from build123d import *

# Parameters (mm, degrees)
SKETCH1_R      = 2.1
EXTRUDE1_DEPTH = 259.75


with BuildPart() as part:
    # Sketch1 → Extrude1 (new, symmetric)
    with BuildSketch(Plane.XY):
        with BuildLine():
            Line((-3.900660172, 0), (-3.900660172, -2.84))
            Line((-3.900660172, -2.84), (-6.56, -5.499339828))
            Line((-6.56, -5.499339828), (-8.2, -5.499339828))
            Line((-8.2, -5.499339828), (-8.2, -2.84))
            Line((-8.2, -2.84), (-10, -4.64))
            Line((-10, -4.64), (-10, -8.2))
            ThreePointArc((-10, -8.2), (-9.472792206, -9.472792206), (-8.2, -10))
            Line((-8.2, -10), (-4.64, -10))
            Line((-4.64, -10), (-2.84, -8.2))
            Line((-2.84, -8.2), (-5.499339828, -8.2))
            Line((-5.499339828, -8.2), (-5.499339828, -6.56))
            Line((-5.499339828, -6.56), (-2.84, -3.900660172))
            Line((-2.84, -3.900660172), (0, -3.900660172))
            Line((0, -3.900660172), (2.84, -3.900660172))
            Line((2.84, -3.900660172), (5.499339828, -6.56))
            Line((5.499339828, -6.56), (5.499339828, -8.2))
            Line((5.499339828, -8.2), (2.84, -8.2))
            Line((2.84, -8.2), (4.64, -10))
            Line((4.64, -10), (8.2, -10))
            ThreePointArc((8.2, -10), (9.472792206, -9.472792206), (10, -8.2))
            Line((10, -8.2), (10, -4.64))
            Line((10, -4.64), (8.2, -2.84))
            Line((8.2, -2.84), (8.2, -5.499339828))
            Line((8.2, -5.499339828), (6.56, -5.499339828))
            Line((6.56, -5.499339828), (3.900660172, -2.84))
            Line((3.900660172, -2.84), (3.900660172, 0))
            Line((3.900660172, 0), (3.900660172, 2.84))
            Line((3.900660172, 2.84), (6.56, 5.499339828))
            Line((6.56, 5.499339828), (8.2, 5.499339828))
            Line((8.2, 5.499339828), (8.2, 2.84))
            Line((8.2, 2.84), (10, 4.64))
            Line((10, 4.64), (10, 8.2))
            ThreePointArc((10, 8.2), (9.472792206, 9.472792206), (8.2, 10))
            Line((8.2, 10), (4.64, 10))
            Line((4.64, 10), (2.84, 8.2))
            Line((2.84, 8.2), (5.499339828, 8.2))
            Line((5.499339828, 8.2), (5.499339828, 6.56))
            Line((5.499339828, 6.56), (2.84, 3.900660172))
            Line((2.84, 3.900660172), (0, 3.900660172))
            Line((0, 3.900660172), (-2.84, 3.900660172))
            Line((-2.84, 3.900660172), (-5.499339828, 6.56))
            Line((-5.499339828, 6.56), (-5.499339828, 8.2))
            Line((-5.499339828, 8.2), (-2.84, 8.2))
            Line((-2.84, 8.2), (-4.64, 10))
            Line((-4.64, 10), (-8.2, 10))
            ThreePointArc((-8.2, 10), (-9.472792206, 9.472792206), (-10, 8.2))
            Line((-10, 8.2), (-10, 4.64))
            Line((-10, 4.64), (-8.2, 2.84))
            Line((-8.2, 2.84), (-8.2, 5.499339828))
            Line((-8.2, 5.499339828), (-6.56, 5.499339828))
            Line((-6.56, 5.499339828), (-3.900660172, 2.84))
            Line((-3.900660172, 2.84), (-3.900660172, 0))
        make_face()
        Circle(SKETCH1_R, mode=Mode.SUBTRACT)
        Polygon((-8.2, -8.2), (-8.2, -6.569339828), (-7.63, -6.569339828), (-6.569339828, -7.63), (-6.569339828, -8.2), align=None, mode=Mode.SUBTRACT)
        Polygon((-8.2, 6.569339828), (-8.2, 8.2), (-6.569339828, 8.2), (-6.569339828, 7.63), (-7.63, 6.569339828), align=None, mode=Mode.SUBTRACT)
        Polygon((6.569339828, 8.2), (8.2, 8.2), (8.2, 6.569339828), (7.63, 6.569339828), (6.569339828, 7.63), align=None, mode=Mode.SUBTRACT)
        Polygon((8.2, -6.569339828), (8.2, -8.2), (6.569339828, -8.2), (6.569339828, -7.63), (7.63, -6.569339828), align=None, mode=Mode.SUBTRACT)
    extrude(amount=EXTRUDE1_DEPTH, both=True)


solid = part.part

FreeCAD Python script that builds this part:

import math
import FreeCAD as App
import Part
import Sketcher
from FreeCAD import Vector
Q = App.Units.Quantity


def add_polygon(sketch, points):
    """Adds a closed chain of lines whose ends are joined by coincident constraints."""
    first, n = sketch.GeometryCount, len(points)
    for a, b in zip(points, points[1:] + points[:1]):
        sketch.addGeometry(Part.LineSegment(App.Vector(*a, 0), App.Vector(*b, 0)), False)
    for i in range(n):
        sketch.addConstraint(Sketcher.Constraint("Coincident", first + i, 2, first + (i + 1) % n, 1))

doc = App.newDocument("Part")
body = doc.addObject("PartDesign::Body", "Body")

# Sketch on XY plane
sketch1 = doc.addObject("Sketcher::SketchObject", "Sketch")
body.addObject(sketch1)
sketch1.AttachmentSupport = (doc.XY_Plane, [""])
sketch1.MapMode = "FlatFace"
sketch1.addGeometry(Part.LineSegment(Vector(-3.9, -2.8, 0), Vector(-6.6, -5.5, 0)), False)  # 0
sketch1.addGeometry(Part.LineSegment(Vector(-6.6, -5.5, 0), Vector(-8.2, -5.5, 0)), False)  # 1
sketch1.addGeometry(Part.LineSegment(Vector(-8.2, -5.5, 0), Vector(-8.2, -2.8, 0)), False)  # 2
sketch1.addGeometry(Part.LineSegment(Vector(-8.2, -2.8, 0), Vector(-10, -4.6, 0)), False)  # 3
sketch1.addGeometry(Part.LineSegment(Vector(-10, -4.6, 0), Vector(-10, -8.2, 0)), False)  # 4
sketch1.addGeometry(Part.ArcOfCircle(Part.Circle(Vector(-8.2, -8.2, 0), Vector(0, 0, 1), 1.8), math.radians(180), math.radians(270)), False)  # 5
sketch1.addGeometry(Part.LineSegment(Vector(-8.2, -10, 0), Vector(-4.6, -10, 0)), False)  # 6
sketch1.addGeometry(Part.LineSegment(Vector(-4.6, -10, 0), Vector(-2.8, -8.2, 0)), False)  # 7
sketch1.addGeometry(Part.LineSegment(Vector(-2.8, -8.2, 0), Vector(-5.5, -8.2, 0)), False)  # 8
sketch1.addGeometry(Part.LineSegment(Vector(-5.5, -8.2, 0), Vector(-5.5, -6.6, 0)), False)  # 9
sketch1.addGeometry(Part.LineSegment(Vector(-5.5, -6.6, 0), Vector(-2.8, -3.9, 0)), False)  # 10
sketch1.addGeometry(Part.LineSegment(Vector(-2.8, -3.9, 0), Vector(2.8, -3.9, 0)), False)  # 11
sketch1.addGeometry(Part.LineSegment(Vector(2.8, -3.9, 0), Vector(5.5, -6.6, 0)), False)  # 12
sketch1.addGeometry(Part.LineSegment(Vector(5.5, -6.6, 0), Vector(5.5, -8.2, 0)), False)  # 13
sketch1.addGeometry(Part.LineSegment(Vector(5.5, -8.2, 0), Vector(2.8, -8.2, 0)), False)  # 14
sketch1.addGeometry(Part.LineSegment(Vector(2.8, -8.2, 0), Vector(4.6, -10, 0)), False)  # 15
sketch1.addGeometry(Part.LineSegment(Vector(4.6, -10, 0), Vector(8.2, -10, 0)), False)  # 16
sketch1.addGeometry(Part.ArcOfCircle(Part.Circle(Vector(8.2, -8.2, 0), Vector(0, 0, 1), 1.8), math.radians(-90), math.radians(0)), False)  # 17
sketch1.addGeometry(Part.LineSegment(Vector(10, -8.2, 0), Vector(10, -4.6, 0)), False)  # 18
sketch1.addGeometry(Part.LineSegment(Vector(10, -4.6, 0), Vector(8.2, -2.8, 0)), False)  # 19
sketch1.addGeometry(Part.LineSegment(Vector(8.2, -2.8, 0), Vector(8.2, -5.5, 0)), False)  # 20
sketch1.addGeometry(Part.LineSegment(Vector(8.2, -5.5, 0), Vector(6.6, -5.5, 0)), False)  # 21
sketch1.addGeometry(Part.LineSegment(Vector(6.6, -5.5, 0), Vector(3.9, -2.8, 0)), False)  # 22
sketch1.addGeometry(Part.LineSegment(Vector(3.9, -2.8, 0), Vector(3.9, 2.8, 0)), False)  # 23
sketch1.addGeometry(Part.LineSegment(Vector(3.9, 2.8, 0), Vector(6.6, 5.5, 0)), False)  # 24
sketch1.addGeometry(Part.LineSegment(Vector(6.6, 5.5, 0), Vector(8.2, 5.5, 0)), False)  # 25
sketch1.addGeometry(Part.LineSegment(Vector(8.2, 5.5, 0), Vector(8.2, 2.8, 0)), False)  # 26
sketch1.addGeometry(Part.LineSegment(Vector(8.2, 2.8, 0), Vector(10, 4.6, 0)), False)  # 27
sketch1.addGeometry(Part.LineSegment(Vector(10, 4.6, 0), Vector(10, 8.2, 0)), False)  # 28
sketch1.addGeometry(Part.ArcOfCircle(Part.Circle(Vector(8.2, 8.2, 0), Vector(0, 0, 1), 1.8), math.radians(0), math.radians(90)), False)  # 29
sketch1.addGeometry(Part.LineSegment(Vector(8.2, 10, 0), Vector(4.6, 10, 0)), False)  # 30
sketch1.addGeometry(Part.LineSegment(Vector(4.6, 10, 0), Vector(2.8, 8.2, 0)), False)  # 31
sketch1.addGeometry(Part.LineSegment(Vector(2.8, 8.2, 0), Vector(5.5, 8.2, 0)), False)  # 32
sketch1.addGeometry(Part.LineSegment(Vector(5.5, 8.2, 0), Vector(5.5, 6.6, 0)), False)  # 33
sketch1.addGeometry(Part.LineSegment(Vector(5.5, 6.6, 0), Vector(2.8, 3.9, 0)), False)  # 34
sketch1.addGeometry(Part.LineSegment(Vector(2.8, 3.9, 0), Vector(-2.8, 3.9, 0)), False)  # 35
sketch1.addGeometry(Part.LineSegment(Vector(-2.8, 3.9, 0), Vector(-5.5, 6.6, 0)), False)  # 36
sketch1.addGeometry(Part.LineSegment(Vector(-5.5, 6.6, 0), Vector(-5.5, 8.2, 0)), False)  # 37
sketch1.addGeometry(Part.LineSegment(Vector(-5.5, 8.2, 0), Vector(-2.8, 8.2, 0)), False)  # 38
sketch1.addGeometry(Part.LineSegment(Vector(-2.8, 8.2, 0), Vector(-4.6, 10, 0)), False)  # 39
sketch1.addGeometry(Part.LineSegment(Vector(-4.6, 10, 0), Vector(-8.2, 10, 0)), False)  # 40
sketch1.addGeometry(Part.ArcOfCircle(Part.Circle(Vector(-8.2, 8.2, 0), Vector(0, 0, 1), 1.8), math.radians(90), math.radians(180)), False)  # 41
sketch1.addGeometry(Part.LineSegment(Vector(-10, 8.2, 0), Vector(-10, 4.6, 0)), False)  # 42
sketch1.addGeometry(Part.LineSegment(Vector(-10, 4.6, 0), Vector(-8.2, 2.8, 0)), False)  # 43
sketch1.addGeometry(Part.LineSegment(Vector(-8.2, 2.8, 0), Vector(-8.2, 5.5, 0)), False)  # 44
sketch1.addGeometry(Part.LineSegment(Vector(-8.2, 5.5, 0), Vector(-6.6, 5.5, 0)), False)  # 45
sketch1.addGeometry(Part.LineSegment(Vector(-6.6, 5.5, 0), Vector(-3.9, 2.8, 0)), False)  # 46
sketch1.addGeometry(Part.LineSegment(Vector(-3.9, 2.8, 0), Vector(-3.9, -2.8, 0)), False)  # 47
add_polygon(sketch1, [(-6.6, -8.2), (-8.2, -8.2), (-8.2, -6.6), (-7.6, -6.6), (-6.6, -7.6)])  # lines 48-52
add_polygon(sketch1, [(7.6, -6.6), (8.2, -6.6), (8.2, -8.2), (6.6, -8.2), (6.6, -7.6)])  # lines 53-57
add_polygon(sketch1, [(-7.6, 6.6), (-8.2, 6.6), (-8.2, 8.2), (-6.6, 8.2), (-6.6, 7.6)])  # lines 58-62
sketch1.addGeometry(Part.Circle(Vector(0, 0, 0), Vector(0, 0, 1), 2.1), False)  # 63
add_polygon(sketch1, [(6.6, 7.6), (6.6, 8.2), (8.2, 8.2), (8.2, 6.6), (7.6, 6.6)])  # lines 64-68
sketch1.addConstraint([
    Sketcher.Constraint("Coincident", 0, 2, 1, 1),
    Sketcher.Constraint("Coincident", 1, 2, 2, 1),
    Sketcher.Constraint("Coincident", 2, 2, 3, 1),
    Sketcher.Constraint("Coincident", 3, 2, 4, 1),
    Sketcher.Constraint("Tangent", 4, 2, 5, 1),
    Sketcher.Constraint("Tangent", 5, 2, 6, 1),
    Sketcher.Constraint("Coincident", 6, 2, 7, 1),
    Sketcher.Constraint("Coincident", 7, 2, 8, 1),
    Sketcher.Constraint("Coincident", 8, 2, 9, 1),
    Sketcher.Constraint("Coincident", 9, 2, 10, 1),
    Sketcher.Constraint("Coincident", 10, 2, 11, 1),
    Sketcher.Constraint("Coincident", 11, 2, 12, 1),
    Sketcher.Constraint("Coincident", 12, 2, 13, 1),
    Sketcher.Constraint("Coincident", 13, 2, 14, 1),
    Sketcher.Constraint("Coincident", 14, 2, 15, 1),
    Sketcher.Constraint("Coincident", 15, 2, 16, 1),
    Sketcher.Constraint("Tangent", 16, 2, 17, 1),
    Sketcher.Constraint("Tangent", 17, 2, 18, 1),
    Sketcher.Constraint("Coincident", 18, 2, 19, 1),
    Sketcher.Constraint("Coincident", 19, 2, 20, 1),
    Sketcher.Constraint("Coincident", 20, 2, 21, 1),
    Sketcher.Constraint("Coincident", 21, 2, 22, 1),
    Sketcher.Constraint("Coincident", 22, 2, 23, 1),
    Sketcher.Constraint("Coincident", 23, 2, 24, 1),
    Sketcher.Constraint("Coincident", 24, 2, 25, 1),
    Sketcher.Constraint("Coincident", 25, 2, 26, 1),
    Sketcher.Constraint("Coincident", 26, 2, 27, 1),
    Sketcher.Constraint("Coincident", 27, 2, 28, 1),
    Sketcher.Constraint("Tangent", 28, 2, 29, 1),
    Sketcher.Constraint("Tangent", 29, 2, 30, 1),
    Sketcher.Constraint("Coincident", 30, 2, 31, 1),
    Sketcher.Constraint("Coincident", 31, 2, 32, 1),
    Sketcher.Constraint("Coincident", 32, 2, 33, 1),
    Sketcher.Constraint("Coincident", 33, 2, 34, 1),
    Sketcher.Constraint("Coincident", 34, 2, 35, 1),
    Sketcher.Constraint("Coincident", 35, 2, 36, 1),
    Sketcher.Constraint("Coincident", 36, 2, 37, 1),
    Sketcher.Constraint("Coincident", 37, 2, 38, 1),
    Sketcher.Constraint("Coincident", 38, 2, 39, 1),
    Sketcher.Constraint("Coincident", 39, 2, 40, 1),
    Sketcher.Constraint("Tangent", 40, 2, 41, 1),
    Sketcher.Constraint("Tangent", 41, 2, 42, 1),
    Sketcher.Constraint("Coincident", 42, 2, 43, 1),
    Sketcher.Constraint("Coincident", 43, 2, 44, 1),
    Sketcher.Constraint("Coincident", 44, 2, 45, 1),
    Sketcher.Constraint("Coincident", 45, 2, 46, 1),
    Sketcher.Constraint("Coincident", 46, 2, 47, 1),
    Sketcher.Constraint("Coincident", 47, 2, 0, 1),
    Sketcher.Constraint("Horizontal", 1),
    Sketcher.Constraint("Vertical", 2),
    Sketcher.Constraint("Vertical", 4),
    Sketcher.Constraint("Horizontal", 6),
    Sketcher.Constraint("Horizontal", 8),
    Sketcher.Constraint("Vertical", 9),
    Sketcher.Constraint("Horizontal", 11),
    Sketcher.Constraint("Vertical", 13),
    Sketcher.Constraint("Horizontal", 14),
    Sketcher.Constraint("Horizontal", 16),
    Sketcher.Constraint("Vertical", 18),
    Sketcher.Constraint("Vertical", 20),
    Sketcher.Constraint("Horizontal", 21),
    Sketcher.Constraint("Vertical", 23),
    Sketcher.Constraint("Horizontal", 25),
    Sketcher.Constraint("Vertical", 26),
    Sketcher.Constraint("Vertical", 28),
    Sketcher.Constraint("Horizontal", 30),
    Sketcher.Constraint("Horizontal", 32),
    Sketcher.Constraint("Vertical", 33),
    Sketcher.Constraint("Horizontal", 35),
    Sketcher.Constraint("Vertical", 37),
    Sketcher.Constraint("Horizontal", 38),
    Sketcher.Constraint("Horizontal", 40),
    Sketcher.Constraint("Vertical", 42),
    Sketcher.Constraint("Vertical", 44),
    Sketcher.Constraint("Horizontal", 45),
    Sketcher.Constraint("Vertical", 47),
    Sketcher.Constraint("Horizontal", 48),
    Sketcher.Constraint("Vertical", 49),
    Sketcher.Constraint("Horizontal", 50),
    Sketcher.Constraint("Vertical", 52),
    Sketcher.Constraint("Horizontal", 53),
    Sketcher.Constraint("Vertical", 54),
    Sketcher.Constraint("Horizontal", 55),
    Sketcher.Constraint("Vertical", 56),
    Sketcher.Constraint("Horizontal", 58),
    Sketcher.Constraint("Vertical", 59),
    Sketcher.Constraint("Horizontal", 60),
    Sketcher.Constraint("Vertical", 61),
    Sketcher.Constraint("Vertical", 64),
    Sketcher.Constraint("Horizontal", 65),
    Sketcher.Constraint("Vertical", 66),
    Sketcher.Constraint("Horizontal", 67),
    Sketcher.Constraint("Coincident", 63, 3, -1, 1),
    Sketcher.Constraint("Coincident", 48, 2, 5, 3),
    Sketcher.Constraint("Coincident", 54, 2, 17, 3),
    Sketcher.Constraint("Coincident", 59, 2, 41, 3),
    Sketcher.Constraint("Coincident", 65, 2, 29, 3),
    Sketcher.Constraint("Equal", 5, 17),
    Sketcher.Constraint("Equal", 17, 29),
    Sketcher.Constraint("Equal", 29, 41),
    Sketcher.Constraint("Symmetric", 5, 3, 29, 3, -1, 1),
    Sketcher.Constraint("Symmetric", 17, 3, 41, 3, -1, 1),
    Sketcher.Constraint("Symmetric", 0, 2, 24, 2, -1, 1),
    Sketcher.Constraint("Symmetric", 2, 2, 26, 2, -1, 1),
    Sketcher.Constraint("Symmetric", 7, 2, 31, 2, -1, 1),
    Sketcher.Constraint("Symmetric", 9, 2, 33, 2, -1, 1),
    Sketcher.Constraint("Symmetric", 10, 2, 34, 2, -1, 1),
    Sketcher.Constraint("Symmetric", 12, 2, 36, 2, -1, 1),
    Sketcher.Constraint("Symmetric", 14, 2, 38, 2, -1, 1),
    Sketcher.Constraint("Symmetric", 19, 2, 43, 2, -1, 1),
    Sketcher.Constraint("Symmetric", 21, 2, 45, 2, -1, 1),
    Sketcher.Constraint("Symmetric", 22, 2, 46, 2, -1, 1),
    Sketcher.Constraint("Symmetric", 56, 2, 61, 2, -1, 1),
    Sketcher.Constraint("Symmetric", 57, 2, 62, 2, -1, 1),
    Sketcher.Constraint("Symmetric", 50, 2, 67, 2, -1, 1),
    Sketcher.Constraint("Symmetric", 51, 2, 68, 2, -1, 1),
    Sketcher.Constraint("Symmetric", 5, 3, 17, 3, -2),
    Sketcher.Constraint("Symmetric", 9, 2, 12, 2, -2),
    Sketcher.Constraint("Symmetric", 7, 2, 14, 2, -2),
    Sketcher.Constraint("Symmetric", 2, 2, 19, 2, -2),
    Sketcher.Constraint("Symmetric", 0, 2, 21, 2, -2),
    Sketcher.Constraint("Symmetric", 51, 2, 56, 2, -2),
    Sketcher.Constraint("Symmetric", 50, 2, 57, 2, -2),
    Sketcher.Constraint("Parallel", 0, 3),
    Sketcher.Constraint("Parallel", 3, 7),
    Sketcher.Constraint("Parallel", 7, 10),
    Sketcher.Constraint("Perpendicular", 10, 12),
    Sketcher.Constraint("Parallel", 12, 15),
    Sketcher.Constraint("Parallel", 15, 19),
    Sketcher.Constraint("Parallel", 19, 22),
    Sketcher.Constraint("Perpendicular", 22, 24),
    Sketcher.Constraint("Parallel", 24, 27),
    Sketcher.Constraint("Parallel", 27, 31),
    Sketcher.Constraint("Perpendicular", 34, 36),
    Sketcher.Constraint("Parallel", 36, 39),
    Sketcher.Constraint("Parallel", 39, 43),
    Sketcher.Constraint("Parallel", 46, 51),
    Sketcher.Constraint("Perpendicular", 51, 57),
    Sketcher.Constraint("Horizontal", 4, 2, 7, 2),
    Sketcher.Constraint("Horizontal", 19, 2, 22, 2),
    Sketcher.Constraint("Vertical", 41, 3, 1, 2),
    Sketcher.Constraint("Vertical", 7, 2, 10, 2),
    Sketcher.Constraint("Equal", 38, 2),
    Sketcher.Constraint("Equal", 40, 4),
    Sketcher.Constraint("Equal", 45, 9),
    Sketcher.Constraint("Equal", 35, 23),
    Sketcher.Constraint("Equal", 65, 49),
    Sketcher.Constraint("Diameter", 63, Q("4.2 mm")),
    Sketcher.Constraint("Radius", 5, Q("1.8 mm")),
    Sketcher.Constraint("DistanceX", 3, 2, -1, 1, Q("10 mm")),
    Sketcher.Constraint("Distance", 51, Q("1.5 mm")),
    Sketcher.Constraint("DistanceX", 1, 2, 1, 1, Q("1.64 mm")),
    Sketcher.Constraint("DistanceX", 6, 1, 6, 2, Q("3.56 mm")),
    Sketcher.Constraint("DistanceX", 50, 1, 50, 2, Q("0.57 mm")),
    Sketcher.Constraint("DistanceX", 8, 2, 8, 1, Q("2.65934 mm")),
])
pad1 = doc.addObject("PartDesign::Pad", "Pad")
body.addObject(pad1)
pad1.Profile = sketch1
pad1.Length = 519.5
pad1.Midplane = True

doc.recompute()
